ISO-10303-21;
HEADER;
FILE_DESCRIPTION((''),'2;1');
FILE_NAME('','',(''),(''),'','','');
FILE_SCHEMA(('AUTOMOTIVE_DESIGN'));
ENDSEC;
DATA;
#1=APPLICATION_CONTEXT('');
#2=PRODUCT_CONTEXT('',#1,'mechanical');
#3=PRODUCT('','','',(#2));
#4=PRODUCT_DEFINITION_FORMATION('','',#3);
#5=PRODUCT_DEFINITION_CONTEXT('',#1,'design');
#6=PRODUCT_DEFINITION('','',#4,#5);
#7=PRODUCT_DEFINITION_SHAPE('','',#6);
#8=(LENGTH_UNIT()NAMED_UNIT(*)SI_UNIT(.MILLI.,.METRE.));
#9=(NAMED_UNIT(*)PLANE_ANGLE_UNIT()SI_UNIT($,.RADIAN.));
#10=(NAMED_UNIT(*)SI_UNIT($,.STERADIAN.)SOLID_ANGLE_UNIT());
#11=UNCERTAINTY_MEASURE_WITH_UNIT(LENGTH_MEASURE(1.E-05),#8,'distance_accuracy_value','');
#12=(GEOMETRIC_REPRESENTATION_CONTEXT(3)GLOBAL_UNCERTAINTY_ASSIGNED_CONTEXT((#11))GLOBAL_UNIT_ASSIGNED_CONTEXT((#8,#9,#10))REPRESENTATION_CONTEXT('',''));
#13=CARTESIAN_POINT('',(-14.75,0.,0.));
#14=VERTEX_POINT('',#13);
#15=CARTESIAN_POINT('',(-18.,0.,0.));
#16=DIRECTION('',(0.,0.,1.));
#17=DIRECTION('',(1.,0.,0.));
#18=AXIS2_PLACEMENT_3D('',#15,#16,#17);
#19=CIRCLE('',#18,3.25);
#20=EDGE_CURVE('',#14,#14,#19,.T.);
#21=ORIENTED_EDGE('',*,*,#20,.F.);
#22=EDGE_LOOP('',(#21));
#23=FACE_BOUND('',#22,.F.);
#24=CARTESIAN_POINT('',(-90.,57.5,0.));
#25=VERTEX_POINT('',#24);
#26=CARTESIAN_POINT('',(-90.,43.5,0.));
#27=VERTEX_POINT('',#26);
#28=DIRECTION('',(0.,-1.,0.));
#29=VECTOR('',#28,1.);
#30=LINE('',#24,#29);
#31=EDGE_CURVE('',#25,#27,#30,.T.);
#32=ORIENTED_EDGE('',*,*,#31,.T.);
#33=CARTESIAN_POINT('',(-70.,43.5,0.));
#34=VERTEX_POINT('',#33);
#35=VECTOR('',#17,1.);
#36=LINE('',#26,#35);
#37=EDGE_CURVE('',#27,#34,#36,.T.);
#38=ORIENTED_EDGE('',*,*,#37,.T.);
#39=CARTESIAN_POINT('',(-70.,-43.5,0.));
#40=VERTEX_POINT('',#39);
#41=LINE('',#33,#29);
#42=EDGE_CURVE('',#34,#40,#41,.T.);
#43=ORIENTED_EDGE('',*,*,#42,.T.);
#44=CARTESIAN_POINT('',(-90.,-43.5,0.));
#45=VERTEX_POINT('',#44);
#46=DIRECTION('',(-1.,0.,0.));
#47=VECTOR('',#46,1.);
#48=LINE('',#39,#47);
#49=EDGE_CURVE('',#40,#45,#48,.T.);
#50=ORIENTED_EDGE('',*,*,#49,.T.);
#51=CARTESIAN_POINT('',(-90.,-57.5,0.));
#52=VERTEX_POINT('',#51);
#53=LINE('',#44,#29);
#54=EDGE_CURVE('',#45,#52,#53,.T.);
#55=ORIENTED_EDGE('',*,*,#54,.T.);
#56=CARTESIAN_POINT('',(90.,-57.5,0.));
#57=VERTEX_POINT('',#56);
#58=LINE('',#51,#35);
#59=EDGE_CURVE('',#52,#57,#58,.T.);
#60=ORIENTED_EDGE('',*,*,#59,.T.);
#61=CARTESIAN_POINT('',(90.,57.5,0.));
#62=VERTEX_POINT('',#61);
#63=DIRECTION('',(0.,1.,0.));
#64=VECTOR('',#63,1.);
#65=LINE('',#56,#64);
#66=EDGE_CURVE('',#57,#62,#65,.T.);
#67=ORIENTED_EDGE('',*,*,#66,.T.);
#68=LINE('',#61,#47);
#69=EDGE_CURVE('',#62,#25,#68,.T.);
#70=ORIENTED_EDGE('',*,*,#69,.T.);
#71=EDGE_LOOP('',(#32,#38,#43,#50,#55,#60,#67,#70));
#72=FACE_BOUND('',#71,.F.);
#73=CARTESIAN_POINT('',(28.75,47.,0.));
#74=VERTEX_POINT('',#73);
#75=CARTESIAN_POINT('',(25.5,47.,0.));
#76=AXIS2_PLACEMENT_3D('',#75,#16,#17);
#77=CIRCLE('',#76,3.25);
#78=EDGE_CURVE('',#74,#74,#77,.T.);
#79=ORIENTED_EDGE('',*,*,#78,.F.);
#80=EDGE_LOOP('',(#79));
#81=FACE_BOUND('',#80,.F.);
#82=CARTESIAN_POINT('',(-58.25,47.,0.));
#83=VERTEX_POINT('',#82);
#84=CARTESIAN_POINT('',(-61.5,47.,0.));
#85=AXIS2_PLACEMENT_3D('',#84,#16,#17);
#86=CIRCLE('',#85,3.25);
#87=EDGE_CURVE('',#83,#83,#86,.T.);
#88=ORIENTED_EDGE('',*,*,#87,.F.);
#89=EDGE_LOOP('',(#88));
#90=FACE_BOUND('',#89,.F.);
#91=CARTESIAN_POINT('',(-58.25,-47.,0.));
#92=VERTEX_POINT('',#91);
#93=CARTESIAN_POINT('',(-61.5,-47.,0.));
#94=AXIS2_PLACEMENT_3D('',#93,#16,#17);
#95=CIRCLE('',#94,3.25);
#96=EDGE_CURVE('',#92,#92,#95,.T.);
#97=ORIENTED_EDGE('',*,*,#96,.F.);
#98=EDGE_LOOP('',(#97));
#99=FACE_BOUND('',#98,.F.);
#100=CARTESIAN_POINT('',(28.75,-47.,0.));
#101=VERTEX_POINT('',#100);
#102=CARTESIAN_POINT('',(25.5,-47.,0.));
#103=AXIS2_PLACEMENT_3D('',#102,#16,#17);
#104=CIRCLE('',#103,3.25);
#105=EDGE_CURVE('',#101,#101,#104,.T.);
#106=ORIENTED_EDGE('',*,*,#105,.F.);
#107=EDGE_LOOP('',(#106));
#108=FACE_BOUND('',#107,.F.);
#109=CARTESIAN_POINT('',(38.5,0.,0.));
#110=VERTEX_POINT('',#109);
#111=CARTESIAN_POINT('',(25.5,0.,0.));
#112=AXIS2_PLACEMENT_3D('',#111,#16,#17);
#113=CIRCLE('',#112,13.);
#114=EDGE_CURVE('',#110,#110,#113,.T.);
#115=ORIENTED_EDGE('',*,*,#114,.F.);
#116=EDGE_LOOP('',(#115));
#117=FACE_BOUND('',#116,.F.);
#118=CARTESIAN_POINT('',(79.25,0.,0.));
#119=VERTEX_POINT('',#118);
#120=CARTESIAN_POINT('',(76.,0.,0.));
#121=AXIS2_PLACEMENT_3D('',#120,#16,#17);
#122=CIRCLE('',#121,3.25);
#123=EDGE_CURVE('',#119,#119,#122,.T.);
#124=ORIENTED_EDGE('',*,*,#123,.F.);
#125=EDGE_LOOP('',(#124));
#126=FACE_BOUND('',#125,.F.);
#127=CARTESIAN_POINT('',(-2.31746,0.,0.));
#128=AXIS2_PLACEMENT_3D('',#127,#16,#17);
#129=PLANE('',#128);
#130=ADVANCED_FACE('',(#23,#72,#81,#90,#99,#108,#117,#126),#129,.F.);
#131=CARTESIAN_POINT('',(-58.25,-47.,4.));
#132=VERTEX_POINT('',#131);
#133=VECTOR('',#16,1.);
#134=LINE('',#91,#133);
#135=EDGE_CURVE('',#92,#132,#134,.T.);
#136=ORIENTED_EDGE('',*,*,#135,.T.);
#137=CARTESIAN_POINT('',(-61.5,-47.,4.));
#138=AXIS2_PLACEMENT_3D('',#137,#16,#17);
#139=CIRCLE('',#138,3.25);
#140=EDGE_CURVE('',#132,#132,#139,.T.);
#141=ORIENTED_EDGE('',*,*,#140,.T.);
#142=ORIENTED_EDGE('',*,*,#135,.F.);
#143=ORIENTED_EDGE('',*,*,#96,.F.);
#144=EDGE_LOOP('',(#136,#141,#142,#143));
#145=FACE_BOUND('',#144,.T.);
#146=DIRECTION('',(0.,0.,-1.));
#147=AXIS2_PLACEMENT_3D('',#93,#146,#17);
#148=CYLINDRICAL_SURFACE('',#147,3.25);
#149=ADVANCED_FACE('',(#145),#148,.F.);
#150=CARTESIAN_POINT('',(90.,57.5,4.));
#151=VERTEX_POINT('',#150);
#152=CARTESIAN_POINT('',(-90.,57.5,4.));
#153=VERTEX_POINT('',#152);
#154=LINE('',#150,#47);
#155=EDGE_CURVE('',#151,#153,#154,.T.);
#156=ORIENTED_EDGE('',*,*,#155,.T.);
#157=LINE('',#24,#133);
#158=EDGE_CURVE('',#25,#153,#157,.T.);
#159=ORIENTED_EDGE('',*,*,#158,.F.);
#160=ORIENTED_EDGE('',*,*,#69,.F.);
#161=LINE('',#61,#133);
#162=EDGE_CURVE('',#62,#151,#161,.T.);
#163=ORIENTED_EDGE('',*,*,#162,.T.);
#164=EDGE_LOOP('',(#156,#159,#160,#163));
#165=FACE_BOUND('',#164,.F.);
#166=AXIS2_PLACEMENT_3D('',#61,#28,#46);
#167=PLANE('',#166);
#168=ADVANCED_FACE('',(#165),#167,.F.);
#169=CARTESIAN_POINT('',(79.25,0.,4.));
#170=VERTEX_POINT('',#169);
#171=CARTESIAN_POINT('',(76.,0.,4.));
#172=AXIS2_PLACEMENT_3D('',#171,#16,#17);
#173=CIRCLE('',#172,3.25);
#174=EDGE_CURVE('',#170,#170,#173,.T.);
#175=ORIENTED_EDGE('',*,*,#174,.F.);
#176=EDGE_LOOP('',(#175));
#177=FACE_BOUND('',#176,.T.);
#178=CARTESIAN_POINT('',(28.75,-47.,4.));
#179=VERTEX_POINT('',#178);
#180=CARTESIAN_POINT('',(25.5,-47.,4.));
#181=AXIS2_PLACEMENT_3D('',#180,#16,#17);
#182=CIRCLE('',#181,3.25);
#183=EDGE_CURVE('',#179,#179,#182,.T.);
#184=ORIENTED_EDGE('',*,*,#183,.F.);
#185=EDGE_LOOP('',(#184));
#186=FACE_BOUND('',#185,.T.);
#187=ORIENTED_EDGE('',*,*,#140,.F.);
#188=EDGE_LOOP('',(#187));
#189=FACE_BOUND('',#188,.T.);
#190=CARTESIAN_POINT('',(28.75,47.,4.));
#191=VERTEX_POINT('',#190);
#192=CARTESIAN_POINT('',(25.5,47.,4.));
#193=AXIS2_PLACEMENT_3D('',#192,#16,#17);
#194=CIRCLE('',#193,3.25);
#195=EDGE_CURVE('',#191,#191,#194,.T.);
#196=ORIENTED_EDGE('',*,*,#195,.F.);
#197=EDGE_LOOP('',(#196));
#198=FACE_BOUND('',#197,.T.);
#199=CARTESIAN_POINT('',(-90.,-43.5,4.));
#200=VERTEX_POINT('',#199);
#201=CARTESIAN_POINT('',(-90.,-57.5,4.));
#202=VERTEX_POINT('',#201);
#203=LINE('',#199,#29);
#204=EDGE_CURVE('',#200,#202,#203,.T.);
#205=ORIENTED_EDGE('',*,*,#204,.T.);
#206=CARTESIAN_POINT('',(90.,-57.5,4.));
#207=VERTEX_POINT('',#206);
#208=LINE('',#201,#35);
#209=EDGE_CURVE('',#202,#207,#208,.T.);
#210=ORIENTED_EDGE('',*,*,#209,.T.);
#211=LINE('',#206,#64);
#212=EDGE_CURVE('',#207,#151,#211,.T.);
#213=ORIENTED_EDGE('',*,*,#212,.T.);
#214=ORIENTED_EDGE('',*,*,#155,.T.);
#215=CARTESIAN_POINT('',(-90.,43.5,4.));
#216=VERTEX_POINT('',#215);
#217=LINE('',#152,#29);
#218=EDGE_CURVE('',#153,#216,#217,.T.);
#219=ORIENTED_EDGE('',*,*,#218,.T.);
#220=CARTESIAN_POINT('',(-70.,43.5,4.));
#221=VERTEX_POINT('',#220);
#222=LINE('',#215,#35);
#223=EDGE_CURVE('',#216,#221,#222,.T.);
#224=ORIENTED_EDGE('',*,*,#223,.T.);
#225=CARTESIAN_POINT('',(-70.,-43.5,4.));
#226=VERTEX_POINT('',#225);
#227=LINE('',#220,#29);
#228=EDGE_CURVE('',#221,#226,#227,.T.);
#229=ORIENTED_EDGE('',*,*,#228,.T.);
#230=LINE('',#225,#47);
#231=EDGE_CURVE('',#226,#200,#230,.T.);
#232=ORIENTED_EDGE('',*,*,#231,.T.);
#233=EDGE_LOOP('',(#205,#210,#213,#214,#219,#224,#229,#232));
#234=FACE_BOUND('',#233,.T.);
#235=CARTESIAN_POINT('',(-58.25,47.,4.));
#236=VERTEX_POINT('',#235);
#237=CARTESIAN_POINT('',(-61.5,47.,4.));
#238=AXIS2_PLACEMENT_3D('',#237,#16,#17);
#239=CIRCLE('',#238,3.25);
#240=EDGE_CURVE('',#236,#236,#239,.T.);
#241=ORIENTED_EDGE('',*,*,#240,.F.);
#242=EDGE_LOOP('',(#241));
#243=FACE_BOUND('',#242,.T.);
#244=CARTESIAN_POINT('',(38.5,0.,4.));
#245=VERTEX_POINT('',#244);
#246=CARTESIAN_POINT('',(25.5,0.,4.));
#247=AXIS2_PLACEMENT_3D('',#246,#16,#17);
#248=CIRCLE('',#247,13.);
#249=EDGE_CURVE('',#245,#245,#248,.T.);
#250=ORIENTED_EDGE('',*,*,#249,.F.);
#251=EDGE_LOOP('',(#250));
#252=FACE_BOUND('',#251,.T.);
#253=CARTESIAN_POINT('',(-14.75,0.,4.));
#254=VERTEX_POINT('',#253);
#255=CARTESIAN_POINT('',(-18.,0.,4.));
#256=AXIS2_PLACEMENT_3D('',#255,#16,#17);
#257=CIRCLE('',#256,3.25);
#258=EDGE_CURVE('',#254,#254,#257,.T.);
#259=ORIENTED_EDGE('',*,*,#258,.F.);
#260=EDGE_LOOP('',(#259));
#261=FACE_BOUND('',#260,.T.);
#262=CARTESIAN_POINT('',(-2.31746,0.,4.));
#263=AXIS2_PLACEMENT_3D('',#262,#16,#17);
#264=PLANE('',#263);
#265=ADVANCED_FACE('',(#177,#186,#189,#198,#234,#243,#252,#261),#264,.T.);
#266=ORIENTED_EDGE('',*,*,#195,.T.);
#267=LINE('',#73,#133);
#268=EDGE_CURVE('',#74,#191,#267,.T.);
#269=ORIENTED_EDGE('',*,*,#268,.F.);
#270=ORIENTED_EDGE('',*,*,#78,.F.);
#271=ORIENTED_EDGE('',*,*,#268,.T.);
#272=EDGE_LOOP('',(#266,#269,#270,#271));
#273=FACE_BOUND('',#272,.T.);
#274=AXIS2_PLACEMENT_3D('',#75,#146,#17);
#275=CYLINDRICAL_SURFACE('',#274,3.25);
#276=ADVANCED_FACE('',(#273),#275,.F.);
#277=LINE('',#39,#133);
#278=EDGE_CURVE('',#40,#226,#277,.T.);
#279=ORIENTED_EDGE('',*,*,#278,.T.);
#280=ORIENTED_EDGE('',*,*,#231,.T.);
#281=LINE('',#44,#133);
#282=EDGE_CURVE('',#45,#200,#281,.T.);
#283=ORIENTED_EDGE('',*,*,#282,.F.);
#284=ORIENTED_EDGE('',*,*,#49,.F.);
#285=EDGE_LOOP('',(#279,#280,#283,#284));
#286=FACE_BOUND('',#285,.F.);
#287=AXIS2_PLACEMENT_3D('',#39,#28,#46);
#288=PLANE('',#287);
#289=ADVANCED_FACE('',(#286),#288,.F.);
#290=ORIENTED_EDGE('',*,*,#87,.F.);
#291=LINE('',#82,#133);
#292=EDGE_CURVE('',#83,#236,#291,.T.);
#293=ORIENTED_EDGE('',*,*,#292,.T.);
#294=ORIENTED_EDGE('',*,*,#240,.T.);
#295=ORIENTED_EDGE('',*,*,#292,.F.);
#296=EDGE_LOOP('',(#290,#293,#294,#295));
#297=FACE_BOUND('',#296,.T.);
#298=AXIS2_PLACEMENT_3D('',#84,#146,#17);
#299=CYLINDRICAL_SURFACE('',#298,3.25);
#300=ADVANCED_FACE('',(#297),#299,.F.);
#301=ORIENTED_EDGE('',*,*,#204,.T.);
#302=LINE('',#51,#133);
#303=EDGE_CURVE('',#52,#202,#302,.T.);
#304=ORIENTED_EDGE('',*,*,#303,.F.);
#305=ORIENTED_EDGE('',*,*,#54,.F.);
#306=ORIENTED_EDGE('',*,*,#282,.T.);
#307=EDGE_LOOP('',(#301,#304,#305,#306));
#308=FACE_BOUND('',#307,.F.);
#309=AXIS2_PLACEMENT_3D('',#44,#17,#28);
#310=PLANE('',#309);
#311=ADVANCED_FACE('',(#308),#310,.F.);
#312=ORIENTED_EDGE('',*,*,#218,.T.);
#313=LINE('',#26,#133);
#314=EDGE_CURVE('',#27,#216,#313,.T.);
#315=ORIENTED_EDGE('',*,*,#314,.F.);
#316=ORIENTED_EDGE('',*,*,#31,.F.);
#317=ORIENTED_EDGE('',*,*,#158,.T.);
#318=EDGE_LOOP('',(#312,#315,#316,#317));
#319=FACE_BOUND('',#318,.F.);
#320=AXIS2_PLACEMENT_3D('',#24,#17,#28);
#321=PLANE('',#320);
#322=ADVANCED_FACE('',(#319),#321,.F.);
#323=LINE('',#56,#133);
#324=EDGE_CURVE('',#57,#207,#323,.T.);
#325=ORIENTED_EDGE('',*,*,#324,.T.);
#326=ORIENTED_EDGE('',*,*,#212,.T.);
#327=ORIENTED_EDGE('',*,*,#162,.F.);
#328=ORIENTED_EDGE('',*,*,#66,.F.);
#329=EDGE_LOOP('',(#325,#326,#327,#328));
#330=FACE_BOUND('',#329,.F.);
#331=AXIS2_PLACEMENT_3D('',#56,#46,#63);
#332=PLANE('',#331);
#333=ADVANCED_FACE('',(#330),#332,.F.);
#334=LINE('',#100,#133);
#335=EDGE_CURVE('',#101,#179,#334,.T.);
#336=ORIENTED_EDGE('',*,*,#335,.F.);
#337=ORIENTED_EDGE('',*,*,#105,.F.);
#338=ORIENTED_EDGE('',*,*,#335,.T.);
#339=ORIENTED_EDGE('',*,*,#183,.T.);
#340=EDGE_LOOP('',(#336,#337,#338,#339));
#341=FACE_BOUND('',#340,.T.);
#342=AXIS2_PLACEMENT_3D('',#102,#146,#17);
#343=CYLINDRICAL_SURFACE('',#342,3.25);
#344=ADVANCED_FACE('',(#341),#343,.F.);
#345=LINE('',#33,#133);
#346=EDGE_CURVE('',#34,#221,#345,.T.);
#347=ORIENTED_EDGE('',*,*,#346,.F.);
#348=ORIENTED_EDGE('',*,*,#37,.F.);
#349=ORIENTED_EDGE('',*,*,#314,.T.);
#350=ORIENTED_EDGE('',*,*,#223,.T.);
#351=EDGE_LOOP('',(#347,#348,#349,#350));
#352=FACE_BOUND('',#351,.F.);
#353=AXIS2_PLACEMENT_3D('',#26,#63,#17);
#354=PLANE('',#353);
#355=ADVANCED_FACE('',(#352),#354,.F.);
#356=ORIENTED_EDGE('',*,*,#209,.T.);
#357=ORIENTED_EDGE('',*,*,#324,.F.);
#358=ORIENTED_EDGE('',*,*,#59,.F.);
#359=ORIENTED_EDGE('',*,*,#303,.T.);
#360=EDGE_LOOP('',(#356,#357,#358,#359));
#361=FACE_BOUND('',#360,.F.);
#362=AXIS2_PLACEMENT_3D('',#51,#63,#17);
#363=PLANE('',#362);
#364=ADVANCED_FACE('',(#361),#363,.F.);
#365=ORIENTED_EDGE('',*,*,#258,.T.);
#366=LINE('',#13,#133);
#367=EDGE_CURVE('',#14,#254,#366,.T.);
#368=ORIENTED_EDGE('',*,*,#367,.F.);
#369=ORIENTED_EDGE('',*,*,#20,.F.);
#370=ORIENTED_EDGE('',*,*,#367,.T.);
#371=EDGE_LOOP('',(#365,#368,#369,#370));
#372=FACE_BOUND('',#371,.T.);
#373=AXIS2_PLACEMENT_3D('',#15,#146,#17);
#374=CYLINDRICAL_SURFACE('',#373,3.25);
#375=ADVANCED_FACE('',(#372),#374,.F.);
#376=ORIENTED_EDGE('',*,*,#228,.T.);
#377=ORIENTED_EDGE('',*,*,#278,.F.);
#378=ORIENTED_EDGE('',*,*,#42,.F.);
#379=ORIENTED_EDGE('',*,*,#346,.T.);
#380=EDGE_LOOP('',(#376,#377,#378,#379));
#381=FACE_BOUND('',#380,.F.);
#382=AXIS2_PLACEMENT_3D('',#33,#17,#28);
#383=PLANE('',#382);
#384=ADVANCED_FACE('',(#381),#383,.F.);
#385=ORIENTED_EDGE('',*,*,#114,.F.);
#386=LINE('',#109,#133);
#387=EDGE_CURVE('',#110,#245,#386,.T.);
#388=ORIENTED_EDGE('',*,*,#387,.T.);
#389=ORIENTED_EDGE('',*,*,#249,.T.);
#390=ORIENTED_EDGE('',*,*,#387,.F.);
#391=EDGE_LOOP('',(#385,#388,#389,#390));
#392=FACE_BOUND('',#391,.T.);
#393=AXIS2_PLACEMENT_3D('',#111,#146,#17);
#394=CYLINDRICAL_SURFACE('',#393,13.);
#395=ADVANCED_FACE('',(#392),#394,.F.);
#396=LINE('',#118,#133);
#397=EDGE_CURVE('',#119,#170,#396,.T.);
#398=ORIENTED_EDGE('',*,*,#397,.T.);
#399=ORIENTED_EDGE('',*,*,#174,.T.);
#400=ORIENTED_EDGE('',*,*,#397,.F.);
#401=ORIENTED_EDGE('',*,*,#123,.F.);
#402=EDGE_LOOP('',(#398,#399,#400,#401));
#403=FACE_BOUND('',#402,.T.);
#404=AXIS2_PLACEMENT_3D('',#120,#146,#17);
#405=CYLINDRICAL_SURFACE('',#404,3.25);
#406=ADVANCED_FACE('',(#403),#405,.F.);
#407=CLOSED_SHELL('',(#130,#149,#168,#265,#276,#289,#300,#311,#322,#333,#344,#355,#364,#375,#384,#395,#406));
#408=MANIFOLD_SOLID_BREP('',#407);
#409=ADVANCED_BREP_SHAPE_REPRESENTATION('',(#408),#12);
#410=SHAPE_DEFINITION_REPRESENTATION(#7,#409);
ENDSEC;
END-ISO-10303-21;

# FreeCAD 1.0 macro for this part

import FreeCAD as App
import Part
import Sketcher

V = App.Vector
Q = App.Units.Quantity

doc = App.newDocument("Part")
params = doc.addObject("Spreadsheet::Sheet", "Params")
for row, (alias, value) in enumerate([
    ("sketch1_diameter", "26 mm"),
    ("sketch1_diameter2", "6.5 mm"),
    ("sketch1_width", "180 mm"),
    ("sketch1_width2", "20 mm"),
    ("sketch1_height", "14 mm"),
    ("pad1_length", "4 mm"),
], start=1):
    params.set(f"A{row}", alias)
    params.set(f"B{row}", "=" + value)
    params.setAlias(f"B{row}", alias)

body = doc.addObject("PartDesign::Body", "Body")

# Sketch on XY plane
sketch1 = body.newObject("Sketcher::SketchObject", "Sketch")
sketch1.AttachmentSupport = (doc.getObject("XY_Plane"), [""])
sketch1.MapMode = "FlatFace"
sketch1.addGeometry(Part.LineSegment(V(90, 57.5, 0), V(-90, 57.5, 0)), False)
sketch1.addGeometry(Part.LineSegment(V(-90, 57.5, 0), V(-90, 43.5, 0)), False)
sketch1.addGeometry(Part.LineSegment(V(-90, 43.5, 0), V(-70, 43.5, 0)), False)
sketch1.addGeometry(Part.LineSegment(V(-70, 43.5, 0), V(-70, -43.5, 0)), False)
sketch1.addGeometry(Part.LineSegment(V(-70, -43.5, 0), V(-90, -43.5, 0)), False)
sketch1.addGeometry(Part.LineSegment(V(-90, -43.5, 0), V(-90, -57.5, 0)), False)
sketch1.addGeometry(Part.LineSegment(V(-90, -57.5, 0), V(90, -57.5, 0)), False)
sketch1.addGeometry(Part.LineSegment(V(90, -57.5, 0), V(90, 57.5, 0)), False)
sketch1.addGeometry(Part.Circle(V(-61.5, -47, 0), V(0, 0, 1), 3.25), False)
sketch1.addGeometry(Part.Circle(V(25.5, -47, 0), V(0, 0, 1), 3.25), False)
sketch1.addGeometry(Part.Circle(V(-18, 0, 0), V(0, 0, 1), 3.25), False)
sketch1.addGeometry(Part.Circle(V(-61.5, 47, 0), V(0, 0, 1), 3.25), False)
sketch1.addGeometry(Part.Circle(V(25.5, 0, 0), V(0, 0, 1), 13), False)
sketch1.addGeometry(Part.Circle(V(76, 0, 0), V(0, 0, 1), 3.25), False)
sketch1.addGeometry(Part.Circle(V(25.5, 47, 0), V(0, 0, 1), 3.25), False)
sketch1.addConstraint(Sketcher.Constraint("Coincident", 0, 2, 1, 1))
sketch1.addConstraint(Sketcher.Constraint("Coincident", 1, 2, 2, 1))
sketch1.addConstraint(Sketcher.Constraint("Coincident", 2, 2, 3, 1))
sketch1.addConstraint(Sketcher.Constraint("Coincident", 3, 2, 4, 1))
sketch1.addConstraint(Sketcher.Constraint("Coincident", 4, 2, 5, 1))
sketch1.addConstraint(Sketcher.Constraint("Coincident", 5, 2, 6, 1))
sketch1.addConstraint(Sketcher.Constraint("Coincident", 6, 2, 7, 1))
sketch1.addConstraint(Sketcher.Constraint("Coincident", 7, 2, 0, 1))
sketch1.addConstraint(Sketcher.Constraint("Horizontal", 0))
sketch1.addConstraint(Sketcher.Constraint("Vertical", 1))
sketch1.addConstraint(Sketcher.Constraint("Horizontal", 2))
sketch1.addConstraint(Sketcher.Constraint("Vertical", 3))
sketch1.addConstraint(Sketcher.Constraint("Horizontal", 4))
sketch1.addConstraint(Sketcher.Constraint("Vertical", 5))
sketch1.addConstraint(Sketcher.Constraint("Horizontal", 6))
sketch1.addConstraint(Sketcher.Constraint("Vertical", 7))
sketch1.addConstraint(Sketcher.Constraint("Equal", 8, 9))
sketch1.addConstraint(Sketcher.Constraint("Equal", 9, 10))
sketch1.addConstraint(Sketcher.Constraint("Equal", 10, 11))
sketch1.addConstraint(Sketcher.Constraint("Equal", 11, 13))
sketch1.addConstraint(Sketcher.Constraint("Equal", 13, 14))
sketch1.addConstraint(Sketcher.Constraint("Symmetric", 0, 2, 6, 2, -1, 1))
sketch1.addConstraint(Sketcher.Constraint("Symmetric", 8, 3, 11, 3, -1))
sketch1.addConstraint(Sketcher.Constraint("Symmetric", 9, 3, 14, 3, -1))
sketch1.addConstraint(Sketcher.Constraint("Symmetric", 1, 2, 4, 2, -1))
sketch1.addConstraint(Sketcher.Constraint("PointOnObject", 10, 3, -1))
sketch1.addConstraint(Sketcher.Constraint("PointOnObject", 12, 3, -1))
sketch1.addConstraint(Sketcher.Constraint("PointOnObject", 13, 3, -1))
sketch1.addConstraint(Sketcher.Constraint("Horizontal", 8, 3, 9, 3))
sketch1.addConstraint(Sketcher.Constraint("Vertical", 9, 3, 12, 3))
sketch1.addConstraint(Sketcher.Constraint("Diameter", 12, Q("26 mm")))
sketch1.addConstraint(Sketcher.Constraint("Diameter", 8, Q("6.5 mm")))
sketch1.addConstraint(Sketcher.Constraint("DistanceX", 0, 2, 0, 1, Q("180 mm")))
sketch1.addConstraint(Sketcher.Constraint("DistanceX", 2, 1, 2, 2, Q("20 mm")))
sketch1.addConstraint(Sketcher.Constraint("DistanceY", 1, 2, 1, 1, Q("14 mm")))
sketch1.addConstraint(Sketcher.Constraint("DistanceY", 3, 2, 3, 1, Q("87 mm")))
sketch1.addConstraint(Sketcher.Constraint("DistanceY", 8, 3, -1, 1, Q("47 mm")))
sketch1.addConstraint(Sketcher.Constraint("DistanceX", 10, 3, -1, 1, Q("18 mm")))
sketch1.addConstraint(Sketcher.Constraint("DistanceX", -1, 1, 13, 3, Q("76 mm")))
sketch1.addConstraint(Sketcher.Constraint("DistanceX", 8, 3, 9, 3, Q("87 mm")))
sketch1.addConstraint(Sketcher.Constraint("DistanceX", 8, 3, -1, 1, Q("61.5 mm")))
sketch1.setExpression("Constraints[30]", "Params.sketch1_diameter")
sketch1.setExpression("Constraints[31]", "Params.sketch1_diameter2")
sketch1.setExpression("Constraints[32]", "Params.sketch1_width")
sketch1.setExpression("Constraints[33]", "Params.sketch1_width2")
sketch1.setExpression("Constraints[34]", "Params.sketch1_height")
pad1 = body.newObject("PartDesign::Pad", "Pad")
pad1.Profile = sketch1
pad1.setExpression("Length", "Params.pad1_length")

doc.recompute()
